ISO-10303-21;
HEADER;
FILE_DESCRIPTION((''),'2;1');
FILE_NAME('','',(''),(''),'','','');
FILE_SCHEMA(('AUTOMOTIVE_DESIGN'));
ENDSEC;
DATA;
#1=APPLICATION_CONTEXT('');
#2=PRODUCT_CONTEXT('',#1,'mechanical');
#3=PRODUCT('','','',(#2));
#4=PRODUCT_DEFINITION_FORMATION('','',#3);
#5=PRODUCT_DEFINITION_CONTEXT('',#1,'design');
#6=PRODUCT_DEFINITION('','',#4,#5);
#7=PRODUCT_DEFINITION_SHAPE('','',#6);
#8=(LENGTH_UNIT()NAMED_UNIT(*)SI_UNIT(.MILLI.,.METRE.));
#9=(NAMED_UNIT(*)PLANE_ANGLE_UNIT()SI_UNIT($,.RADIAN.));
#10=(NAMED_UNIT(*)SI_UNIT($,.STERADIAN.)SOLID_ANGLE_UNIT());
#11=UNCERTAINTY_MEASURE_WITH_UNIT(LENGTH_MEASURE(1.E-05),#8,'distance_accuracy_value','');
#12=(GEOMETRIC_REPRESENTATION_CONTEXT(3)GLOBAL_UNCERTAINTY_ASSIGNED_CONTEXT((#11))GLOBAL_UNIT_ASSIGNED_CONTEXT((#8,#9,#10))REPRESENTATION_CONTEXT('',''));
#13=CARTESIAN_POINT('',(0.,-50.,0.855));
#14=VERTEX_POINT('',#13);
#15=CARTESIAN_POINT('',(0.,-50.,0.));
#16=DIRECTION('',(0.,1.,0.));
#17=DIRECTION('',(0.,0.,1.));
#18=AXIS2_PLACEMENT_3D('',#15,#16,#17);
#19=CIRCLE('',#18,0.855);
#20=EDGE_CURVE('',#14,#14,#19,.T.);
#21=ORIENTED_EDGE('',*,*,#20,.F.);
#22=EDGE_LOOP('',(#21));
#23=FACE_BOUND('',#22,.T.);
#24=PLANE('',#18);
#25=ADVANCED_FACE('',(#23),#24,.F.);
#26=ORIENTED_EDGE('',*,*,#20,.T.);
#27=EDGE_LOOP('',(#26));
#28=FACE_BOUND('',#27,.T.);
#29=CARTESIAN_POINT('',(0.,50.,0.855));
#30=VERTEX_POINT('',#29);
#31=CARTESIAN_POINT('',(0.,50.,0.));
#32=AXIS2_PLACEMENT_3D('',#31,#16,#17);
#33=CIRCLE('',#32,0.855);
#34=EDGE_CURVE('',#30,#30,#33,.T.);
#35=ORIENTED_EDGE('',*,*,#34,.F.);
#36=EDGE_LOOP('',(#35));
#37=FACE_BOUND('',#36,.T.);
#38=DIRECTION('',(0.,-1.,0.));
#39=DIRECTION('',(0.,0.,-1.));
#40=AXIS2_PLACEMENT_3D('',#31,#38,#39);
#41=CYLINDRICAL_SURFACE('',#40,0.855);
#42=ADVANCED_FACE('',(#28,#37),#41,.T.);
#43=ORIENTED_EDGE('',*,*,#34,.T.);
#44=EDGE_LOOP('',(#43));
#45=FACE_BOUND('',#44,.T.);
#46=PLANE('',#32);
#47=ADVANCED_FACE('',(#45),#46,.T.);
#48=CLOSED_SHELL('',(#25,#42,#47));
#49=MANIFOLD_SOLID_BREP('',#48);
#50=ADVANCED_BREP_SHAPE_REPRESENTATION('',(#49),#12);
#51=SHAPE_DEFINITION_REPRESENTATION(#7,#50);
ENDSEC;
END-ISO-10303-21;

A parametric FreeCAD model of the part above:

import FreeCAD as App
import Part
import Sketcher

doc = App.newDocument("Part")
body = doc.addObject("PartDesign::Body", "Body")

# Sketch on XZ plane
sketch1 = body.newObject("Sketcher::SketchObject", "Sketch")
sketch1.AttachmentSupport = (doc.getObject("XZ_Plane"), [""])
sketch1.MapMode = "FlatFace"
sketch1.addGeometry(Part.Circle(App.Vector(0, 0, 0), App.Vector(0, 0, 1), 0.9), False)
sketch1.addConstraint(Sketcher.Constraint("Coincident", 0, 3, -1, 1))
sketch1.addConstraint(Sketcher.Constraint("Diameter", 0, 1.71))
pad1 = body.newObject("PartDesign::Pad", "Pad")
pad1.Profile = sketch1
pad1.Length = 100
pad1.Midplane = True

doc.recompute()
